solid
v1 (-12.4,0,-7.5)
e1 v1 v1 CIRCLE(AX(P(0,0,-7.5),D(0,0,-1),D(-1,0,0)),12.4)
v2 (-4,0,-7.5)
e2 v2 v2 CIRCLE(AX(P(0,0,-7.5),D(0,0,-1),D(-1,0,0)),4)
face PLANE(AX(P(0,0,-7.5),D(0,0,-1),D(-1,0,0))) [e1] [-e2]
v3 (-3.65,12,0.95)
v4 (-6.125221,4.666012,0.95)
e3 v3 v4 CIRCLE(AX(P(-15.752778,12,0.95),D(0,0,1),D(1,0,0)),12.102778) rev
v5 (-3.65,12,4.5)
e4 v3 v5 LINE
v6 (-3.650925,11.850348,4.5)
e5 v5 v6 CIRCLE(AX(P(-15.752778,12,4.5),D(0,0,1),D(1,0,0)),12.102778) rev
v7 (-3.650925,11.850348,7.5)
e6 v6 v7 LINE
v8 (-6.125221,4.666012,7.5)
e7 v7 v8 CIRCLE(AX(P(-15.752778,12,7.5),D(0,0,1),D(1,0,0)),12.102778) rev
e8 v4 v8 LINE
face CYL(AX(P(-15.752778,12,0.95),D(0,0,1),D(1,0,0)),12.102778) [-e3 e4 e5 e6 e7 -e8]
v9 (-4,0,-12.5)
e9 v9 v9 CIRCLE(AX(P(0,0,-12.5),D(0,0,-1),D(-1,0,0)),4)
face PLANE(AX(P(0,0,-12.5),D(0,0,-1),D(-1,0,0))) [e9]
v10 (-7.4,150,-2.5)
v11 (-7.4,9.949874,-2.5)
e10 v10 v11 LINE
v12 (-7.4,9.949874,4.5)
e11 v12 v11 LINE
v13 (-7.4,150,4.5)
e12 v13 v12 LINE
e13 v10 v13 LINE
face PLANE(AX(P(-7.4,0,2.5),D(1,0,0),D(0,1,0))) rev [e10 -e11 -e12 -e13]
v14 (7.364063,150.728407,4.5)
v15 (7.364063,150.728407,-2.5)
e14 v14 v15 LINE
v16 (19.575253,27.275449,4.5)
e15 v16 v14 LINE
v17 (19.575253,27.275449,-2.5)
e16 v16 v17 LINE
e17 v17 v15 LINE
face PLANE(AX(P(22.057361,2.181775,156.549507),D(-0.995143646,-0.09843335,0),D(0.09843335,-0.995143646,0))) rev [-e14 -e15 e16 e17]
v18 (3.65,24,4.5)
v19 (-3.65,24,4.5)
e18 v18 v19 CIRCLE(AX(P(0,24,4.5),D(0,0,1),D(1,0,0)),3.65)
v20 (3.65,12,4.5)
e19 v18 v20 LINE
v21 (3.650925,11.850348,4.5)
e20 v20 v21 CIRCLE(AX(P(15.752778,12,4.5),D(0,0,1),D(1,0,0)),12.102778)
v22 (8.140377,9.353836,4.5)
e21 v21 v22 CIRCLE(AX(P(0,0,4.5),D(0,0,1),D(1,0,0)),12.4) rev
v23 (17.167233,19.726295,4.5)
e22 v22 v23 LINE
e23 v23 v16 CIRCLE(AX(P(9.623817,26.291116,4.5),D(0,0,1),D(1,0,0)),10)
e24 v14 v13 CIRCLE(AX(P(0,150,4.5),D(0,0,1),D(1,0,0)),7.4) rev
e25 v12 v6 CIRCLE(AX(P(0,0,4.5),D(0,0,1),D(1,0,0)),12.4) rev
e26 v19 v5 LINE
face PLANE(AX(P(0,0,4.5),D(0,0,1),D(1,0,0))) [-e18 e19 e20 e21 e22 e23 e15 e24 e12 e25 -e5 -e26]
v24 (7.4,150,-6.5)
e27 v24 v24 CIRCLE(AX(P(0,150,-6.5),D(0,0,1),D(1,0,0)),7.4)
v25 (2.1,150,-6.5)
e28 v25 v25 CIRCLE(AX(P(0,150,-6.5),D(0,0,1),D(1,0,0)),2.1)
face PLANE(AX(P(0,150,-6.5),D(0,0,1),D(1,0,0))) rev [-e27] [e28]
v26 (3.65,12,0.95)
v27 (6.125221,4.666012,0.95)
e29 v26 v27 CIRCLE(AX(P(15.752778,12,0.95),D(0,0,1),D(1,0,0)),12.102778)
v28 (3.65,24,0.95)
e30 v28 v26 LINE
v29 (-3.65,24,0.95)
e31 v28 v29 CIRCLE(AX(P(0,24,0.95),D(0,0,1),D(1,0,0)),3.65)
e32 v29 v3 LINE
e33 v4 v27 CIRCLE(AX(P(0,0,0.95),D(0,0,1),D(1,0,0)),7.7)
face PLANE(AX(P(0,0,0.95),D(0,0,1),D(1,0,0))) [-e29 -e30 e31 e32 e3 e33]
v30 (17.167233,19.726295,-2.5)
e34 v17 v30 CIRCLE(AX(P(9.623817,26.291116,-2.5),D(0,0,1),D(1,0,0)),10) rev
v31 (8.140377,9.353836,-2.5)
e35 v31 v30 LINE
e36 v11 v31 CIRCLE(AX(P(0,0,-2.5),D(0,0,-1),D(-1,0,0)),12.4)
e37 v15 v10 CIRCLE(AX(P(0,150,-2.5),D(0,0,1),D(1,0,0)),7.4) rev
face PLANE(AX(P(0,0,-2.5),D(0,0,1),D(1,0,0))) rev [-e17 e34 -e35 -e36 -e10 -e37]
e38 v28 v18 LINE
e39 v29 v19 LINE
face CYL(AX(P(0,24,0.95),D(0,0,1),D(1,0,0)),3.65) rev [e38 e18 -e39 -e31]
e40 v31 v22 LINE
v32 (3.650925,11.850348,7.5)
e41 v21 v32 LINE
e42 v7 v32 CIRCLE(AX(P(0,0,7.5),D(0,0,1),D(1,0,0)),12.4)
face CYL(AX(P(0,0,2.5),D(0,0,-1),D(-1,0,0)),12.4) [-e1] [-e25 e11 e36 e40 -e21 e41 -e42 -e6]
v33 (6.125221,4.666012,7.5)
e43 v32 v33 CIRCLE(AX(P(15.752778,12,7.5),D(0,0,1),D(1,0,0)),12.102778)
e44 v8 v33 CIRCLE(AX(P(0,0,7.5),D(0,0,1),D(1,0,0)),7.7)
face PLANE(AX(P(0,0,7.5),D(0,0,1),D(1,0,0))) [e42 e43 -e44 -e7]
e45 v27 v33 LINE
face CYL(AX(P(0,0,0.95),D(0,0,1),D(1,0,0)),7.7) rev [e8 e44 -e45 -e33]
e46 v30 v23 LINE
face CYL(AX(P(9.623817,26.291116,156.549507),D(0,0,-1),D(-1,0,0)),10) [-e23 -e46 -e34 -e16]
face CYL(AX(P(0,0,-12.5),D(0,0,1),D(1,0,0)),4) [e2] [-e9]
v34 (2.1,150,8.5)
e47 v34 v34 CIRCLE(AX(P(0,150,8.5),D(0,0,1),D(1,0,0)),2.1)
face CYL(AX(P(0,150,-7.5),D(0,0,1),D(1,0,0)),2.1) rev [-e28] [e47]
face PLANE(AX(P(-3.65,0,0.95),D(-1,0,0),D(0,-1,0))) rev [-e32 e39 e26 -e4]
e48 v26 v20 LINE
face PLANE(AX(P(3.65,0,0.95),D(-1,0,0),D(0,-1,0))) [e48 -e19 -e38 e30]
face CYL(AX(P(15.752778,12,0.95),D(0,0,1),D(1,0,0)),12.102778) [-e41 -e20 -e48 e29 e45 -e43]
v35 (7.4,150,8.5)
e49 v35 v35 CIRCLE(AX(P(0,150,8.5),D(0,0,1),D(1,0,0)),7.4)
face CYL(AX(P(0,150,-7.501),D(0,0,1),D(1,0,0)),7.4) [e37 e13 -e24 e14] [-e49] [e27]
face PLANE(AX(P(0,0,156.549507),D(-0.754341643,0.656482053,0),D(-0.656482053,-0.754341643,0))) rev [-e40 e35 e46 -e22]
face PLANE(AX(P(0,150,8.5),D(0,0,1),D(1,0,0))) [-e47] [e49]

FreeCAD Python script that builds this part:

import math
import FreeCAD as App
import Part
import Sketcher


def edges_at(feature, points):
    """Names of the edges that pass closest to the given points."""
    edges = feature.Shape.Edges
    near = lambda p: min(range(len(edges)), key=lambda i: edges[i].distToShape(Part.Vertex(*p))[0])
    return sorted({f"Edge{near(p) + 1}" for p in points})

doc = App.newDocument("Part")
body = doc.addObject("PartDesign::Body", "Body")

# Sketch on XY plane
sketch1 = doc.addObject("Sketcher::SketchObject", "Sketch")
body.addObject(sketch1)
sketch1.AttachmentSupport = (doc.XY_Plane, [""])
sketch1.MapMode = "FlatFace"
sketch1.addGeometry(Part.LineSegment(App.Vector(7, 10, 0), App.Vector(7, 140, 0)), False)
sketch1.addGeometry(Part.ArcOfCircle(Part.Circle(App.Vector(0, 150, 0), App.Vector(0, 0, 1), 12), math.radians(-53), math.radians(233)), False)
sketch1.addGeometry(Part.LineSegment(App.Vector(-7, 140, 0), App.Vector(-7, 10, 0)), False)
sketch1.addGeometry(Part.ArcOfCircle(Part.Circle(App.Vector(0, 0, 0), App.Vector(0, 0, 1), 12), math.radians(127), math.radians(413)), False)
sketch1.addConstraint(Sketcher.Constraint("Coincident", 0, 2, 1, 1))
sketch1.addConstraint(Sketcher.Constraint("Coincident", 1, 2, 2, 1))
sketch1.addConstraint(Sketcher.Constraint("Coincident", 2, 2, 3, 1))
sketch1.addConstraint(Sketcher.Constraint("Coincident", 3, 2, 0, 1))
sketch1.addConstraint(Sketcher.Constraint("Vertical", 0))
sketch1.addConstraint(Sketcher.Constraint("Vertical", 2))
sketch1.addConstraint(Sketcher.Constraint("Coincident", 3, 3, -1, 1))
sketch1.addConstraint(Sketcher.Constraint("Equal", 1, 3))
sketch1.addConstraint(Sketcher.Constraint("Symmetric", 0, 2, 1, 2, -2))
sketch1.addConstraint(Sketcher.Constraint("Radius", 1, 12.4))
sketch1.addConstraint(Sketcher.Constraint("DistanceY", -1, 1, 1, 3, 150.0))
sketch1.addConstraint(Sketcher.Constraint("DistanceX", -1, 1, 0, 2, 7.4))
pad1 = doc.addObject("PartDesign::Pad", "Pad")
body.addObject(pad1)
pad1.Profile = sketch1
pad1.Length = 5
pad1.Midplane = True

# Sketch on XY plane
sketch2 = doc.addObject("Sketcher::SketchObject", "Sketch001")
body.addObject(sketch2)
sketch2.AttachmentSupport = (doc.XY_Plane, [""])
sketch2.MapMode = "FlatFace"
sketch2.AttachmentOffset = App.Placement(App.Vector(0, 0, -2.5), App.Rotation())
sketch2.addGeometry(Part.Circle(App.Vector(0, 0, 0), App.Vector(0, 0, 1), 12), False)
sketch2.addConstraint(Sketcher.Constraint("Coincident", 0, 3, -1, 1))
sketch2.addConstraint(Sketcher.Constraint("Diameter", 0, 24.8))
pad2 = doc.addObject("PartDesign::Pad", "Pad001")
body.addObject(pad2)
pad2.Profile = sketch2
pad2.Length = 5
pad2.Reversed = True

# Sketch on XY plane
sketch3 = doc.addObject("Sketcher::SketchObject", "Sketch002")
body.addObject(sketch3)
sketch3.AttachmentSupport = (doc.XY_Plane, [""])
sketch3.MapMode = "FlatFace"
sketch3.AttachmentOffset = App.Placement(App.Vector(0, 0, 7.5), App.Rotation())
sketch3.addGeometry(Part.Circle(App.Vector(0, 0, 0), App.Vector(0, 0, 1), 12), False)
sketch3.addConstraint(Sketcher.Constraint("Coincident", 0, 3, -1, 1))
sketch3.addConstraint(Sketcher.Constraint("Diameter", 0, 24.8))
pad3 = doc.addObject("PartDesign::Pad", "Pad002")
body.addObject(pad3)
pad3.Profile = sketch3
pad3.Length = 5
pad3.Reversed = True

# Sketch on XY plane
sketch4 = doc.addObject("Sketcher::SketchObject", "Sketch003")
body.addObject(sketch4)
sketch4.AttachmentSupport = (doc.XY_Plane, [""])
sketch4.MapMode = "FlatFace"
sketch4.AttachmentOffset = App.Placement(App.Vector(0, 0, 4.5), App.Rotation())
sketch4.addGeometry(Part.LineSegment(App.Vector(7, 10, 0), App.Vector(7, 140, 0)), False)
sketch4.addGeometry(Part.ArcOfCircle(Part.Circle(App.Vector(0, 150, 0), App.Vector(0, 0, 1), 12), math.radians(-127), math.radians(-53)), False)
sketch4.addGeometry(Part.LineSegment(App.Vector(-7, 140, 0), App.Vector(-7, 10, 0)), False)
sketch4.addGeometry(Part.ArcOfCircle(Part.Circle(App.Vector(0, 0, 0), App.Vector(0, 0, 1), 12), math.radians(53), math.radians(127)), False)
sketch4.addGeometry(Part.ArcOfCircle(Part.Circle(App.Vector(0, 150, 0), App.Vector(0, 0, 1), 12), math.radians(-127), math.radians(-53)), False)
sketch4.addGeometry(Part.ArcOfCircle(Part.Circle(App.Vector(0, 150, 0), App.Vector(0, 0, 1), 12), math.radians(-53), math.radians(0)), False)
sketch4.addGeometry(Part.ArcOfCircle(Part.Circle(App.Vector(0, 150, 0), App.Vector(0, 0, 1), 12), math.radians(0), math.radians(233)), False)
sketch4.addConstraint(Sketcher.Constraint("Coincident", 0, 2, 1, 2))
sketch4.addConstraint(Sketcher.Constraint("Coincident", 1, 1, 2, 1))
sketch4.addConstraint(Sketcher.Constraint("Coincident", 2, 2, 3, 2))
sketch4.addConstraint(Sketcher.Constraint("Coincident", 3, 1, 0, 1))
sketch4.addConstraint(Sketcher.Constraint("Tangent", 4, 2, 5, 1))
sketch4.addConstraint(Sketcher.Constraint("Tangent", 5, 2, 6, 1))
sketch4.addConstraint(Sketcher.Constraint("Tangent", 6, 2, 4, 1))
sketch4.addConstraint(Sketcher.Constraint("Vertical", 0))
sketch4.addConstraint(Sketcher.Constraint("Vertical", 2))
sketch4.addConstraint(Sketcher.Constraint("Coincident", 3, 3, -1, 1))
sketch4.addConstraint(Sketcher.Constraint("Coincident", 4, 3, 1, 3))
sketch4.addConstraint(Sketcher.Constraint("Coincident", 4, 2, 0, 2))
sketch4.addConstraint(Sketcher.Constraint("Equal", 1, 3))
sketch4.addConstraint(Sketcher.Constraint("Symmetric", 0, 2, 1, 1, -2))
sketch4.addConstraint(Sketcher.Constraint("Horizontal", 6, 3, 5, 2))
sketch4.addConstraint(Sketcher.Constraint("Horizontal", 4, 2, 6, 2))
sketch4.addConstraint(Sketcher.Constraint("Radius", 1, 12.4))
sketch4.addConstraint(Sketcher.Constraint("DistanceY", -1, 1, 1, 3, 150.0))
sketch4.addConstraint(Sketcher.Constraint("DistanceX", 0, 2, 5, 2, 5.0))
pad4 = doc.addObject("PartDesign::Pad", "Pad003")
body.addObject(pad4)
pad4.Profile = sketch4
pad4.Length = 2
pad4.Reversed = True

# Sketch on XY plane
sketch5 = doc.addObject("Sketcher::SketchObject", "Sketch004")
body.addObject(sketch5)
sketch5.AttachmentSupport = (doc.XY_Plane, [""])
sketch5.MapMode = "FlatFace"
sketch5.addGeometry(Part.ArcOfCircle(Part.Circle(App.Vector(0, 150, 0), App.Vector(0, 0, 1), 12), math.radians(-53), math.radians(233)), False)
sketch5.addGeometry(Part.LineSegment(App.Vector(7, 140, 0), App.Vector(7, 135, 0)), False)
sketch5.addGeometry(Part.LineSegment(App.Vector(7, 135, 0), App.Vector(31, 135, 0)), False)
sketch5.addGeometry(Part.LineSegment(App.Vector(31, 135, 0), App.Vector(31, 164, 0)), False)
sketch5.addGeometry(Part.LineSegment(App.Vector(31, 164, 0), App.Vector(-28, 164, 0)), False)
sketch5.addGeometry(Part.LineSegment(App.Vector(-28, 164, 0), App.Vector(-28, 135, 0)), False)
sketch5.addGeometry(Part.LineSegment(App.Vector(-28, 135, 0), App.Vector(-7, 135, 0)), False)
sketch5.addGeometry(Part.LineSegment(App.Vector(-7, 135, 0), App.Vector(-7, 140, 0)), False)
sketch5.addGeometry(Part.LineSegment(App.Vector(7, 150, 0), App.Vector(7, 140, 0)), False)
sketch5.addGeometry(Part.ArcOfCircle(Part.Circle(App.Vector(0, 150, 0), App.Vector(0, 0, 1), 12), math.radians(-53), math.radians(233)), False)
sketch5.addGeometry(Part.LineSegment(App.Vector(-7, 140, 0), App.Vector(-7, 150, 0)), False)
sketch5.addGeometry(Part.ArcOfCircle(Part.Circle(App.Vector(0, 150, 0), App.Vector(0, 0, 1), 7), math.radians(0), math.radians(180)), False)
sketch5.addConstraint(Sketcher.Constraint("Coincident", 0, 1, 1, 1))
sketch5.addConstraint(Sketcher.Constraint("Coincident", 1, 2, 2, 1))
sketch5.addConstraint(Sketcher.Constraint("Coincident", 2, 2, 3, 1))
sketch5.addConstraint(Sketcher.Constraint("Coincident", 3, 2, 4, 1))
sketch5.addConstraint(Sketcher.Constraint("Coincident", 4, 2, 5, 1))
sketch5.addConstraint(Sketcher.Constraint("Coincident", 5, 2, 6, 1))
sketch5.addConstraint(Sketcher.Constraint("Coincident", 6, 2, 7, 1))
sketch5.addConstraint(Sketcher.Constraint("Coincident", 7, 2, 0, 2))
sketch5.addConstraint(Sketcher.Constraint("Coincident", 8, 2, 9, 1))
sketch5.addConstraint(Sketcher.Constraint("Coincident", 9, 2, 10, 1))
sketch5.addConstraint(Sketcher.Constraint("Tangent", 10, 2, 11, 2))
sketch5.addConstraint(Sketcher.Constraint("Tangent", 11, 1, 8, 1))
sketch5.addConstraint(Sketcher.Constraint("Vertical", 1))
sketch5.addConstraint(Sketcher.Constraint("Horizontal", 2))
sketch5.addConstraint(Sketcher.Constraint("Vertical", 3))
sketch5.addConstraint(Sketcher.Constraint("Horizontal", 4))
sketch5.addConstraint(Sketcher.Constraint("Vertical", 5))
sketch5.addConstraint(Sketcher.Constraint("Horizontal", 6))
sketch5.addConstraint(Sketcher.Constraint("Vertical", 7))
sketch5.addConstraint(Sketcher.Constraint("Vertical", 8))
sketch5.addConstraint(Sketcher.Constraint("Vertical", 10))
sketch5.addConstraint(Sketcher.Constraint("Coincident", 9, 3, 0, 3))
sketch5.addConstraint(Sketcher.Constraint("Coincident", 11, 3, 0, 3))
sketch5.addConstraint(Sketcher.Constraint("Coincident", 8, 2, 0, 1))
sketch5.addConstraint(Sketcher.Constraint("Symmetric", 1, 2, 6, 2, -2))
sketch5.addConstraint(Sketcher.Constraint("PointOnObject", 0, 3, -2))
sketch5.addConstraint(Sketcher.Constraint("Radius", 0, 12.4))
sketch5.addConstraint(Sketcher.Constraint("Radius", 11, 7.4))
sketch5.addConstraint(Sketcher.Constraint("DistanceY", -1, 1, 0, 3, 150.0))
sketch5.addConstraint(Sketcher.Constraint("DistanceY", 3, 1, 3, 2, 29.466561))
sketch5.addConstraint(Sketcher.Constraint("DistanceX", 2, 1, 2, 2, 23.723215))
sketch5.addConstraint(Sketcher.Constraint("DistanceX", 4, 2, 4, 1, 59.438677))
sketch5.addConstraint(Sketcher.Constraint("DistanceY", 1, 2, 1, 1, 5.181468))
pocket1 = doc.addObject("PartDesign::Pocket", "Pocket")
body.addObject(pocket1)
pocket1.Profile = sketch5
pocket1.Type = "ThroughAll"
pocket1.Midplane = True

# Sketch on XY plane
sketch6 = doc.addObject("Sketcher::SketchObject", "Sketch005")
body.addObject(sketch6)
sketch6.AttachmentSupport = (doc.XY_Plane, [""])
sketch6.MapMode = "FlatFace"
sketch6.AttachmentOffset = App.Placement(App.Vector(0, 0, 4.5), App.Rotation())
sketch6.addGeometry(Part.LineSegment(App.Vector(20, 23, 0), App.Vector(0, 0, 0)), False)
sketch6.addGeometry(Part.LineSegment(App.Vector(0, 0, 0), App.Vector(0, 12.4, 0)), False)
sketch6.addGeometry(Part.ArcOfCircle(Part.Circle(App.Vector(0, 0, 0), App.Vector(0, 0, 1), 12.4), math.radians(53), math.radians(90)), False)
sketch6.addGeometry(Part.LineSegment(App.Vector(7.4, 9.9, 0), App.Vector(7.4, 150, 0)), False)
sketch6.addGeometry(Part.ArcOfCircle(Part.Circle(App.Vector(0, 150, 0), App.Vector(0, 0, 1), 7.4), math.radians(0), math.radians(5.65)), False)
sketch6.addGeometry(Part.LineSegment(App.Vector(7.4, 150.7, 0), App.Vector(20, 23, 0)), False)
sketch6.addConstraint(Sketcher.Constraint("Coincident", 0, 2, 1, 1))
sketch6.addConstraint(Sketcher.Constraint("Coincident", 1, 2, 2, 2))
sketch6.addConstraint(Sketcher.Constraint("Coincident", 2, 1, 3, 1))
sketch6.addConstraint(Sketcher.Constraint("Tangent", 3, 2, 4, 1))
sketch6.addConstraint(Sketcher.Constraint("Tangent", 4, 2, 5, 1))
sketch6.addConstraint(Sketcher.Constraint("Coincident", 5, 2, 0, 1))
sketch6.addConstraint(Sketcher.Constraint("Vertical", 1))
sketch6.addConstraint(Sketcher.Constraint("Vertical", 3))
sketch6.addConstraint(Sketcher.Constraint("Coincident", 2, 3, -1, 1))
sketch6.addConstraint(Sketcher.Constraint("Coincident", 0, 2, -1, 1))
sketch6.addConstraint(Sketcher.Constraint("PointOnObject", 4, 3, -2))
sketch6.addConstraint(Sketcher.Constraint("Radius", 2, 12.4))
sketch6.addConstraint(Sketcher.Constraint("Radius", 4, 7.4))
sketch6.addConstraint(Sketcher.Constraint("DistanceY", -1, 1, 4, 3, 150.0))
sketch6.addConstraint(Sketcher.Constraint("DistanceX", -1, 1, 5, 2, 20.0))
sketch6.addConstraint(Sketcher.Constraint("DistanceY", 2, 1, 5, 2, 13.031459))
pad5 = doc.addObject("PartDesign::Pad", "Pad004")
body.addObject(pad5)
pad5.Profile = sketch6
pad5.Length = 7
pad5.Reversed = True
doc.recompute()

fillet = doc.addObject("PartDesign::Fillet", "Fillet")
body.addObject(fillet)
fillet.Base = (pad5, edges_at(pad5, [(20, 22.981, 1)]))
fillet.Radius = 10

# Sketch on XY plane
sketch7 = doc.addObject("Sketcher::SketchObject", "Sketch006")
body.addObject(sketch7)
sketch7.AttachmentSupport = (doc.XY_Plane, [""])
sketch7.MapMode = "FlatFace"
sketch7.AttachmentOffset = App.Placement(App.Vector(0, 0, 1), App.Rotation())
sketch7.addGeometry(Part.Circle(App.Vector(0, 150, 0), App.Vector(0, 0, 1), 7), False)
sketch7.addConstraint(Sketcher.Constraint("PointOnObject", 0, 3, -2))
sketch7.addConstraint(Sketcher.Constraint("Diameter", 0, 14.8))
sketch7.addConstraint(Sketcher.Constraint("DistanceY", -1, 1, 0, 3, 150.0))
pad6 = doc.addObject("PartDesign::Pad", "Pad005")
body.addObject(pad6)
pad6.Profile = sketch7
pad6.Length = 15
pad6.Midplane = True

# Sketch on XY plane
sketch8 = doc.addObject("Sketcher::SketchObject", "Sketch007")
body.addObject(sketch8)
sketch8.AttachmentSupport = (doc.XY_Plane, [""])
sketch8.MapMode = "FlatFace"
sketch8.AttachmentOffset = App.Placement(App.Vector(0, 0, 7.5), App.Rotation())
sketch8.addGeometry(Part.LineSegment(App.Vector(-3.6, 24, 0), App.Vector(-3.6, 12, 0)), False)
sketch8.addGeometry(Part.ArcOfCircle(Part.Circle(App.Vector(-15.8, 12, 0), App.Vector(0, 0, 1), 12.1), math.radians(-37), math.radians(0)), False)
sketch8.addGeometry(Part.ArcOfCircle(Part.Circle(App.Vector(0, 0, 0), App.Vector(0, 0, 1), 7.7), math.radians(143), math.radians(397)), False)
sketch8.addGeometry(Part.ArcOfCircle(Part.Circle(App.Vector(15.8, 12, 0), App.Vector(0, 0, 1), 12.1), math.radians(180), math.radians(217)), False)
sketch8.addGeometry(Part.LineSegment(App.Vector(3.6, 12, 0), App.Vector(3.6, 24, 0)), False)
sketch8.addGeometry(Part.ArcOfCircle(Part.Circle(App.Vector(0, 24, 0), App.Vector(0, 0, 1), 3.6), math.radians(0), math.radians(180)), False)
sketch8.addConstraint(Sketcher.Constraint("Tangent", 0, 2, 1, 2))
sketch8.addConstraint(Sketcher.Constraint("Tangent", 1, 1, 2, 1))
sketch8.addConstraint(Sketcher.Constraint("Tangent", 2, 2, 3, 2))
sketch8.addConstraint(Sketcher.Constraint("Tangent", 3, 1, 4, 1))
sketch8.addConstraint(Sketcher.Constraint("Tangent", 4, 2, 5, 1))
sketch8.addConstraint(Sketcher.Constraint("Tangent", 5, 2, 0, 1))
sketch8.addConstraint(Sketcher.Constraint("Vertical", 0))
sketch8.addConstraint(Sketcher.Constraint("Vertical", 4))
sketch8.addConstraint(Sketcher.Constraint("Coincident", 2, 3, -1, 1))
sketch8.addConstraint(Sketcher.Constraint("Equal", 1, 3))
sketch8.addConstraint(Sketcher.Constraint("PointOnObject", 5, 3, -2))
sketch8.addConstraint(Sketcher.Constraint("Radius", 2, 7.7))
sketch8.addConstraint(Sketcher.Constraint("DistanceY", 0, 2, 0, 1, 12.0))
sketch8.addConstraint(Sketcher.Constraint("Radius", 5, 3.65))
sketch8.addConstraint(Sketcher.Constraint("DistanceY", -1, 1, 1, 3, 12.0))
pocket2 = doc.addObject("PartDesign::Pocket", "Pocket001")
body.addObject(pocket2)
pocket2.Profile = sketch8
pocket2.Length = 6.55

# Sketch on XY plane
sketch9 = doc.addObject("Sketcher::SketchObject", "Sketch008")
body.addObject(sketch9)
sketch9.AttachmentSupport = (doc.XY_Plane, [""])
sketch9.MapMode = "FlatFace"
sketch9.AttachmentOffset = App.Placement(App.Vector(0, 0, 8.5), App.Rotation())
sketch9.addGeometry(Part.Circle(App.Vector(0, 150, 0), App.Vector(0, 0, 1), 2.1), False)
sketch9.addConstraint(Sketcher.Constraint("PointOnObject", 0, 3, -2))
sketch9.addConstraint(Sketcher.Constraint("Diameter", 0, 4.2))
sketch9.addConstraint(Sketcher.Constraint("DistanceY", -1, 1, 0, 3, 150.0))
pocket3 = doc.addObject("PartDesign::Pocket", "Pocket002")
body.addObject(pocket3)
pocket3.Profile = sketch9
pocket3.Type = "ThroughAll"

# Sketch on XY plane
sketch10 = doc.addObject("Sketcher::SketchObject", "Sketch009")
body.addObject(sketch10)
sketch10.AttachmentSupport = (doc.XY_Plane, [""])
sketch10.MapMode = "FlatFace"
sketch10.AttachmentOffset = App.Placement(App.Vector(0, 0, -7.5), App.Rotation())
sketch10.addGeometry(Part.Circle(App.Vector(0, 0, 0), App.Vector(0, 0, 1), 4), False)
sketch10.addConstraint(Sketcher.Constraint("Coincident", 0, 3, -1, 1))
sketch10.addConstraint(Sketcher.Constraint("Diameter", 0, 8.0))
pad7 = doc.addObject("PartDesign::Pad", "Pad006")
body.addObject(pad7)
pad7.Profile = sketch10
pad7.Length = 5
pad7.Reversed = True

doc.recompute()
